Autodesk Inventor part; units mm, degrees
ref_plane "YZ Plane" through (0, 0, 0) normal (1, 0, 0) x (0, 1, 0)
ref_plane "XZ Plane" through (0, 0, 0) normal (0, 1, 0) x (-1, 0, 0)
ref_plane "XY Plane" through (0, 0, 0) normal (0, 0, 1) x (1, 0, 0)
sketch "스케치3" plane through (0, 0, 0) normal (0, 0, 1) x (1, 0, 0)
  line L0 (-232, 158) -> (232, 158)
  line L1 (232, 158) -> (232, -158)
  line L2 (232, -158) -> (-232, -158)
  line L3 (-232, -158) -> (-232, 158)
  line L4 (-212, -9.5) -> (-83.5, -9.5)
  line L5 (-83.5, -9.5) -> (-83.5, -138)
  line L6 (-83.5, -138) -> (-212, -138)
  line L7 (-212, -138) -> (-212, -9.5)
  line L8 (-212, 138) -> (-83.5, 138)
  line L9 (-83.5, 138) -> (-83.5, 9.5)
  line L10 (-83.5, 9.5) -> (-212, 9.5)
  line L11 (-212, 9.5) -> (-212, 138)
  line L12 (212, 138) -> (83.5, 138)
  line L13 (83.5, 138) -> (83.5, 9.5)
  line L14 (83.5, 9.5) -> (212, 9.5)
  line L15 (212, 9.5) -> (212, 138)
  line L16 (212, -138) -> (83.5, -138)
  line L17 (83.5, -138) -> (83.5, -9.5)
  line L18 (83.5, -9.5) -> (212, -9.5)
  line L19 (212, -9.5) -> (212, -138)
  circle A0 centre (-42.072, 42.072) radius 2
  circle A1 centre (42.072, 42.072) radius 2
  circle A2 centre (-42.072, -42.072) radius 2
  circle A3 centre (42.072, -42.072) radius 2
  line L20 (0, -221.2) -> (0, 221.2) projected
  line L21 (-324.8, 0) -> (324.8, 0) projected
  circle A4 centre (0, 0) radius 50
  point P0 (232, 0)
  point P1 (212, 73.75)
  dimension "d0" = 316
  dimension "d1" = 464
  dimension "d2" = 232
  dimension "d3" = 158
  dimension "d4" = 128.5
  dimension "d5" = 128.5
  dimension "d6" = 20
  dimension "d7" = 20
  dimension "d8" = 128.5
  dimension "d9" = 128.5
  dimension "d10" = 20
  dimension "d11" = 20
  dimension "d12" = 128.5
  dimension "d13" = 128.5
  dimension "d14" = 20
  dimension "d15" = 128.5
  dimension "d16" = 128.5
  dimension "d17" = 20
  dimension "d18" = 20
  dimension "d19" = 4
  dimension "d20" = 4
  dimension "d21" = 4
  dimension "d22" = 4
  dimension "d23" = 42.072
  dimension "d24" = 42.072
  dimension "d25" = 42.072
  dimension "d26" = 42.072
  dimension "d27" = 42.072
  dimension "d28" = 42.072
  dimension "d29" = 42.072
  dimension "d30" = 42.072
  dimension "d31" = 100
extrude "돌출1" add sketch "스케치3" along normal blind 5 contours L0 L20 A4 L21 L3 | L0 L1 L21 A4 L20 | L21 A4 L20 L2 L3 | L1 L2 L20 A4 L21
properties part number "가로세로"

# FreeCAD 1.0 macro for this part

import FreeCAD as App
import Part
import Sketcher

V = App.Vector


def add_polygon(sketch, points):
    """Adds a closed chain of lines whose ends are joined by coincident constraints."""
    first, n = sketch.GeometryCount, len(points)
    for a, b in zip(points, points[1:] + points[:1]):
        sketch.addGeometry(Part.LineSegment(App.Vector(*a, 0), App.Vector(*b, 0)), False)
    for i in range(n):
        sketch.addConstraint(Sketcher.Constraint("Coincident", first + i, 2, first + (i + 1) % n, 1))

doc = App.newDocument("Part")
body = doc.addObject("PartDesign::Body", "Body")

# Sketch on XY plane
sketch1 = body.newObject("Sketcher::SketchObject", "Sketch")
sketch1.AttachmentSupport = (doc.getObject("XY_Plane"), [""])
sketch1.MapMode = "FlatFace"
add_polygon(sketch1, [(-232, 158), (-232, -158), (232, -158), (232, 158)])  # lines 0-3
sketch1.addGeometry(Part.Circle(V(0, 0, 0), V(0, 0, 1), 50), False)  # 4
add_polygon(sketch1, [(-212, 9.5), (-212, 138), (-83.5, 138), (-83.5, 9.5)])  # lines 5-8
sketch1.addGeometry(Part.Circle(V(-42.072, 42.072, 0), V(0, 0, 1), 2), False)  # 9
add_polygon(sketch1, [(212, 138), (212, 9.5), (83.5, 9.5), (83.5, 138)])  # lines 10-13
sketch1.addGeometry(Part.Circle(V(42.072, 42.072, 0), V(0, 0, 1), 2), False)  # 14
sketch1.addGeometry(Part.Circle(V(-42.072, -42.072, 0), V(0, 0, 1), 2), False)  # 15
add_polygon(sketch1, [(-212, -138), (-212, -9.5), (-83.5, -9.5), (-83.5, -138)])  # lines 16-19
add_polygon(sketch1, [(83.5, -138), (83.5, -9.5), (212, -9.5), (212, -138)])  # lines 20-23
sketch1.addGeometry(Part.Circle(V(42.072, -42.072, 0), V(0, 0, 1), 2), False)  # 24
sketch1.addConstraint([
    Sketcher.Constraint("Vertical", 0),
    Sketcher.Constraint("Horizontal", 1),
    Sketcher.Constraint("Vertical", 2),
    Sketcher.Constraint("Horizontal", 3),
    Sketcher.Constraint("Vertical", 5),
    Sketcher.Constraint("Horizontal", 6),
    Sketcher.Constraint("Vertical", 7),
    Sketcher.Constraint("Horizontal", 8),
    Sketcher.Constraint("Vertical", 10),
    Sketcher.Constraint("Horizontal", 11),
    Sketcher.Constraint("Vertical", 12),
    Sketcher.Constraint("Horizontal", 13),
    Sketcher.Constraint("Vertical", 16),
    Sketcher.Constraint("Horizontal", 17),
    Sketcher.Constraint("Vertical", 18),
    Sketcher.Constraint("Horizontal", 19),
    Sketcher.Constraint("Vertical", 20),
    Sketcher.Constraint("Horizontal", 21),
    Sketcher.Constraint("Vertical", 22),
    Sketcher.Constraint("Horizontal", 23),
    Sketcher.Constraint("Coincident", 4, 3, -1, 1),
    Sketcher.Constraint("Equal", 9, 14),
    Sketcher.Constraint("Equal", 14, 15),
    Sketcher.Constraint("Equal", 15, 24),
    Sketcher.Constraint("Symmetric", 14, 3, 15, 3, -1, 1),
    Sketcher.Constraint("Symmetric", 9, 3, 24, 3, -1, 1),
    Sketcher.Constraint("Symmetric", 0, 2, 2, 2, -1, 1),
    Sketcher.Constraint("Symmetric", 10, 2, 16, 2, -1, 1),
    Sketcher.Constraint("Symmetric", 12, 2, 18, 2, -1, 1),
    Sketcher.Constraint("Symmetric", 7, 2, 20, 2, -1, 1),
    Sketcher.Constraint("Symmetric", 5, 2, 22, 2, -1, 1),
    Sketcher.Constraint("Symmetric", 9, 3, 14, 3, -2),
    Sketcher.Constraint("Symmetric", 8, 2, 10, 2, -2),
    Sketcher.Constraint("Symmetric", 6, 2, 12, 2, -2),
    Sketcher.Constraint("Equal", 23, 5),
    Sketcher.Constraint("Diameter", 4, 100.0),
    Sketcher.Constraint("Diameter", 9, 4.0),
    Sketcher.Constraint("DistanceX", 1, 1, 1, 2, 464.0),
    Sketcher.Constraint("DistanceY", 0, 2, 0, 1, 316.0),
    Sketcher.Constraint("DistanceX", 6, 1, 6, 2, 128.5),
    Sketcher.Constraint("DistanceX", 3, 2, 5, 2, 20.0),
    Sketcher.Constraint("DistanceY", 5, 2, 3, 2, 20.0),
    Sketcher.Constraint("DistanceX", 9, 3, -1, 1, 42.072),
    Sketcher.Constraint("DistanceY", -1, 1, 9, 3, 42.072),
])
pad1 = body.newObject("PartDesign::Pad", "Pad")
pad1.Profile = sketch1
pad1.Length = 5

doc.recompute()
